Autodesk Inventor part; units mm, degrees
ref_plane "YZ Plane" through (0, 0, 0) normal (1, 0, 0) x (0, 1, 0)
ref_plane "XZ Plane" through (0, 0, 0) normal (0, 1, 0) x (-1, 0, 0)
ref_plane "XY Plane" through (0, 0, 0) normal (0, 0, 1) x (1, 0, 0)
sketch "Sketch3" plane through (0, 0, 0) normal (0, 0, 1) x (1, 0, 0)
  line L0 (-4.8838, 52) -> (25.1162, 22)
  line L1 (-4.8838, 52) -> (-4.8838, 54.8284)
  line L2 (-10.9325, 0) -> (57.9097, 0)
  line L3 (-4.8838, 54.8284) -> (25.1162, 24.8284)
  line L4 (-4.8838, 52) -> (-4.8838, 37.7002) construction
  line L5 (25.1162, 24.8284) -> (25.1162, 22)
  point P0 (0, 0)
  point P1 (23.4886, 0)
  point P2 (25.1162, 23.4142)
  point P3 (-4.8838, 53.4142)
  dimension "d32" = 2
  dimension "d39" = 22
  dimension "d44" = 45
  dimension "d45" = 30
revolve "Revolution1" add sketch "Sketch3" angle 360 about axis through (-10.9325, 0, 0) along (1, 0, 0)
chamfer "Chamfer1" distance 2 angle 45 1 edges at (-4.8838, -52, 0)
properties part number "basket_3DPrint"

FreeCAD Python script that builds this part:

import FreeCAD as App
import Part
import Sketcher
Q = App.Units.Quantity


def edges_at(feature, points):
    """Names of the edges that pass closest to the given points."""
    edges = feature.Shape.Edges
    near = lambda p: min(range(len(edges)), key=lambda i: edges[i].distToShape(Part.Vertex(*p))[0])
    return sorted({f"Edge{near(p) + 1}" for p in points})


def add_polygon(sketch, points):
    """Adds a closed chain of lines whose ends are joined by coincident constraints."""
    first, n = sketch.GeometryCount, len(points)
    for a, b in zip(points, points[1:] + points[:1]):
        sketch.addGeometry(Part.LineSegment(App.Vector(*a, 0), App.Vector(*b, 0)), False)
    for i in range(n):
        sketch.addConstraint(Sketcher.Constraint("Coincident", first + i, 2, first + (i + 1) % n, 1))

doc = App.newDocument("Part")
params = doc.addObject("Spreadsheet::Sheet", "Params")
for row, (alias, value) in enumerate([
    ("revolution_angle", "360 deg"),
    ("chamfer_size", "2 mm"),
], start=1):
    params.set(f"A{row}", alias)
    params.set(f"B{row}", "=" + value)
    params.setAlias(f"B{row}", alias)

body = doc.addObject("PartDesign::Body", "Body")

# Sketch on XY plane
sketch1 = body.newObject("Sketcher::SketchObject", "Sketch")
sketch1.AttachmentSupport = (doc.getObject("XY_Plane"), [""])
sketch1.MapMode = "FlatFace"
add_polygon(sketch1, [(-4.9, 54.8), (-4.9, 52), (25.1, 22), (25.1, 24.8)])  # lines 0-3
sketch1.addConstraint(Sketcher.Constraint("Vertical", 0))
sketch1.addConstraint(Sketcher.Constraint("Vertical", 2))
sketch1.addConstraint(Sketcher.Constraint("Parallel", 1, 3))
sketch1.addConstraint(Sketcher.Constraint("Angle", 1, Q("-45 deg")))
sketch1.addConstraint(Sketcher.Constraint("DistanceY", -1, 1, 1, 2, Q("22 mm")))
sketch1.addConstraint(Sketcher.Constraint("DistanceX", 0, 2, 1, 2, Q("30 mm")))
sketch1.addConstraint(Sketcher.Constraint("DistanceY", 0, 2, 0, 1, Q("2.8284 mm")))
sketch1.addConstraint(Sketcher.Constraint("DistanceX", 0, 2, -1, 1, Q("4.8838 mm")))
revolution = body.newObject("PartDesign::Revolution", "Revolution")
revolution.Profile = sketch1
revolution.ReferenceAxis = (sketch1, ["H_Axis"])
revolution.setExpression("Angle", "Params.revolution_angle")
doc.recompute()

chamfer = body.newObject("PartDesign::Chamfer", "Chamfer")
chamfer.Base = (revolution, edges_at(revolution, [(-4.884, -52, 0)]))
chamfer.setExpression("Size", "Params.chamfer_size")

doc.recompute()
